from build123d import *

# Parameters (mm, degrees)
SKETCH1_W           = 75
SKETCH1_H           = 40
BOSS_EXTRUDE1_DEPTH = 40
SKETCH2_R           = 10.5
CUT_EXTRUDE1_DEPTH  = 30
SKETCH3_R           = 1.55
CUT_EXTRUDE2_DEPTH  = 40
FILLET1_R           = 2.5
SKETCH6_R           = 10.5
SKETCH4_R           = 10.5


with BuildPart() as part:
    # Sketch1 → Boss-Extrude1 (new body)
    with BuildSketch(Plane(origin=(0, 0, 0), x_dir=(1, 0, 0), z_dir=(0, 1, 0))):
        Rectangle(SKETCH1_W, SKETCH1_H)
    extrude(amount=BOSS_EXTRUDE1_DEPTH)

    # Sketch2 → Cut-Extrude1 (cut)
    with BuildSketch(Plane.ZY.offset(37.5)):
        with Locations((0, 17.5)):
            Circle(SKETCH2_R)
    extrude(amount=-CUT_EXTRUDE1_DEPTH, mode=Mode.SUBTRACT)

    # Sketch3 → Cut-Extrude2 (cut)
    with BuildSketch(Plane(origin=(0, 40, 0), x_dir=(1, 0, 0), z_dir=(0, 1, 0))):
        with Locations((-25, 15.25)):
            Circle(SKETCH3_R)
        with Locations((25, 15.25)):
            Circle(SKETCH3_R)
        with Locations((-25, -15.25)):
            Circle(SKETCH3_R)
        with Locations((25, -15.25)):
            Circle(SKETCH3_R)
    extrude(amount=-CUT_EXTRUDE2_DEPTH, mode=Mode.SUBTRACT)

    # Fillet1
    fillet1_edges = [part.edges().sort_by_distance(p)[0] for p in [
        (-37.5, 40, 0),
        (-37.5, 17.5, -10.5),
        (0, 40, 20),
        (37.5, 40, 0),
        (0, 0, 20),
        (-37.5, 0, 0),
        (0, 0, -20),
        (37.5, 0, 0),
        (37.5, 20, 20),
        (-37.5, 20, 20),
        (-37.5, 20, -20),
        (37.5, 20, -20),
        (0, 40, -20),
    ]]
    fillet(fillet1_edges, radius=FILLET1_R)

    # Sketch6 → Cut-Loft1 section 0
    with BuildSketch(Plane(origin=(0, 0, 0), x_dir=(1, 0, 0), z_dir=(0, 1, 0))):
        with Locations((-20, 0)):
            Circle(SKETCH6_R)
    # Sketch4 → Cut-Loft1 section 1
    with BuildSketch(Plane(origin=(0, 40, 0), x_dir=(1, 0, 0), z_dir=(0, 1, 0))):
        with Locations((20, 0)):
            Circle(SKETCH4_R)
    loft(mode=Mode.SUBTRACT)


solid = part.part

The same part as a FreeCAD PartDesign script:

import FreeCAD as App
import Part
import Sketcher
from FreeCAD import Vector


def edges_at(feature, points):
    """Names of the edges that pass closest to the given points."""
    edges = feature.Shape.Edges
    near = lambda p: min(range(len(edges)), key=lambda i: edges[i].distToShape(Part.Vertex(*p))[0])
    return sorted({f"Edge{near(p) + 1}" for p in points})

doc = App.newDocument("Part")
params = doc.addObject("Spreadsheet::Sheet", "Params")
for row, (alias, value) in enumerate([
    ("sketch1_width", "75 mm"),
    ("sketch1_height", "40 mm"),
    ("pad1_length", "40 mm"),
    ("sketch2_diameter", "21 mm"),
    ("pocket1_length", "30 mm"),
    ("sketch3_diameter", "3.1 mm"),
    ("pocket2_length", "40 mm"),
    ("fillet_radius", "2.5 mm"),
    ("sketch4_diameter", "21 mm"),
    ("sketch5_diameter", "21 mm"),
], start=1):
    params.set(f"A{row}", alias)
    params.set(f"B{row}", "=" + value)
    params.setAlias(f"B{row}", alias)

body = doc.addObject("PartDesign::Body", "Body")

# Sketch on XZ plane
sketch1 = body.newObject("Sketcher::SketchObject", "Sketch")
sketch1.AttachmentSupport = (doc.getObject("XZ_Plane"), [""])
sketch1.MapMode = "FlatFace"
sketch1.addGeometry([
    Part.LineSegment(Vector(-38, -20, 0), Vector(-38, 20, 0)),
    Part.LineSegment(Vector(-38, 20, 0), Vector(38, 20, 0)),
    Part.LineSegment(Vector(38, 20, 0), Vector(38, -20, 0)),
    Part.LineSegment(Vector(38, -20, 0), Vector(-38, -20, 0)),
], False)
sketch1.addConstraint([
    Sketcher.Constraint("Coincident", 0, 2, 1, 1),
    Sketcher.Constraint("Coincident", 1, 2, 2, 1),
    Sketcher.Constraint("Coincident", 2, 2, 3, 1),
    Sketcher.Constraint("Coincident", 3, 2, 0, 1),
    Sketcher.Constraint("Vertical", 0),
    Sketcher.Constraint("Horizontal", 1),
    Sketcher.Constraint("Vertical", 2),
    Sketcher.Constraint("Horizontal", 3),
    Sketcher.Constraint("Symmetric", 0, 2, 2, 2, -1, 1),
    Sketcher.Constraint("DistanceX", 1, 1, 1, 2, 75.0),
    Sketcher.Constraint("DistanceY", 0, 1, 0, 2, 40.0),
])
sketch1.setExpression("Constraints[9]", "Params.sketch1_width")
sketch1.setExpression("Constraints[10]", "Params.sketch1_height")
pad1 = body.newObject("PartDesign::Pad", "Pad")
pad1.Profile = sketch1
pad1.setExpression("Length", "Params.pad1_length")
pad1.Reversed = True

# Sketch on YZ plane
sketch2 = body.newObject("Sketcher::SketchObject", "Sketch001")
sketch2.AttachmentSupport = (doc.getObject("YZ_Plane"), [""])
sketch2.MapMode = "FlatFace"
sketch2.AttachmentOffset = App.Placement(Vector(0, 0, -37.5), App.Rotation())
sketch2.addGeometry(Part.Circle(Vector(18, 0, 0), Vector(0, 0, 1), 10), False)
sketch2.addConstraint([
    Sketcher.Constraint("PointOnObject", 0, 3, -1),
    Sketcher.Constraint("Diameter", 0, 21.0),
    Sketcher.Constraint("DistanceX", -1, 1, 0, 3, 17.5),
])
sketch2.setExpression("Constraints[1]", "Params.sketch2_diameter")
pocket1 = body.newObject("PartDesign::Pocket", "Pocket")
pocket1.Profile = sketch2
pocket1.setExpression("Length", "Params.pocket1_length")
pocket1.Reversed = True

# Sketch on XZ plane
sketch3 = body.newObject("Sketcher::SketchObject", "Sketch002")
sketch3.AttachmentSupport = (doc.getObject("XZ_Plane"), [""])
sketch3.MapMode = "FlatFace"
sketch3.AttachmentOffset = App.Placement(Vector(0, 0, -40), App.Rotation())
sketch3.addGeometry([
    Part.Circle(Vector(-25, -15.2, 0), Vector(0, 0, 1), 1.6),
    Part.Circle(Vector(25, -15.2, 0), Vector(0, 0, 1), 1.6),
    Part.Circle(Vector(-25, 15.2, 0), Vector(0, 0, 1), 1.6),
    Part.Circle(Vector(25, 15.2, 0), Vector(0, 0, 1), 1.6),
], False)
sketch3.addConstraint([
    Sketcher.Constraint("Equal", 0, 1),
    Sketcher.Constraint("Equal", 1, 2),
    Sketcher.Constraint("Equal", 2, 3),
    Sketcher.Constraint("Symmetric", 1, 3, 2, 3, -1, 1),
    Sketcher.Constraint("Symmetric", 0, 3, 3, 3, -1, 1),
    Sketcher.Constraint("Symmetric", 0, 3, 1, 3, -2),
    Sketcher.Constraint("Diameter", 0, 3.1),
    Sketcher.Constraint("DistanceX", 0, 3, -1, 1, 25.0),
    Sketcher.Constraint("DistanceY", 0, 3, 2, 3, 30.5),
])
sketch3.setExpression("Constraints[6]", "Params.sketch3_diameter")
pocket2 = body.newObject("PartDesign::Pocket", "Pocket001")
pocket2.Profile = sketch3
pocket2.setExpression("Length", "Params.pocket2_length")
pocket2.Reversed = True
doc.recompute()

fillet = body.newObject("PartDesign::Fillet", "Fillet")
fillet.Base = (pocket2, edges_at(pocket2, [
    (-37.5, 40, 0),
    (-37.5, 17.5, -10.5),
    (0, 40, 20),
    (37.5, 40, 0),
    (0, 0, 20),
    (-37.5, 0, 0),
    (0, 0, -20),
    (37.5, 0, 0),
    (37.5, 20, 20),
    (-37.5, 20, 20),
    (-37.5, 20, -20),
    (37.5, 20, -20),
    (0, 40, -20),
]))
fillet.setExpression("Radius", "Params.fillet_radius")

# Sketch on XZ plane
sketch4 = body.newObject("Sketcher::SketchObject", "Sketch003")
sketch4.AttachmentSupport = (doc.getObject("XZ_Plane"), [""])
sketch4.MapMode = "FlatFace"
sketch4.addGeometry(Part.Circle(Vector(-20, 0, 0), Vector(0, 0, 1), 10), False)
sketch4.addConstraint([
    Sketcher.Constraint("PointOnObject", 0, 3, -1),
    Sketcher.Constraint("Diameter", 0, 21.0),
    Sketcher.Constraint("DistanceX", 0, 3, -1, 1, 20.0),
])
sketch4.setExpression("Constraints[1]", "Params.sketch4_diameter")

# Sketch on XZ plane
sketch5 = body.newObject("Sketcher::SketchObject", "Sketch004")
sketch5.AttachmentSupport = (doc.getObject("XZ_Plane"), [""])
sketch5.MapMode = "FlatFace"
sketch5.AttachmentOffset = App.Placement(Vector(0, 0, -40), App.Rotation())
sketch5.addGeometry(Part.Circle(Vector(20, 0, 0), Vector(0, 0, 1), 10), False)
sketch5.addConstraint([
    Sketcher.Constraint("PointOnObject", 0, 3, -1),
    Sketcher.Constraint("Diameter", 0, 21.0),
    Sketcher.Constraint("DistanceX", -1, 1, 0, 3, 20.0),
])
sketch5.setExpression("Constraints[1]", "Params.sketch5_diameter")

subtractiveloft = body.newObject("PartDesign::SubtractiveLoft", "SubtractiveLoft")
subtractiveloft.Profile = sketch4
subtractiveloft.Sections = [sketch5]

doc.recompute()
